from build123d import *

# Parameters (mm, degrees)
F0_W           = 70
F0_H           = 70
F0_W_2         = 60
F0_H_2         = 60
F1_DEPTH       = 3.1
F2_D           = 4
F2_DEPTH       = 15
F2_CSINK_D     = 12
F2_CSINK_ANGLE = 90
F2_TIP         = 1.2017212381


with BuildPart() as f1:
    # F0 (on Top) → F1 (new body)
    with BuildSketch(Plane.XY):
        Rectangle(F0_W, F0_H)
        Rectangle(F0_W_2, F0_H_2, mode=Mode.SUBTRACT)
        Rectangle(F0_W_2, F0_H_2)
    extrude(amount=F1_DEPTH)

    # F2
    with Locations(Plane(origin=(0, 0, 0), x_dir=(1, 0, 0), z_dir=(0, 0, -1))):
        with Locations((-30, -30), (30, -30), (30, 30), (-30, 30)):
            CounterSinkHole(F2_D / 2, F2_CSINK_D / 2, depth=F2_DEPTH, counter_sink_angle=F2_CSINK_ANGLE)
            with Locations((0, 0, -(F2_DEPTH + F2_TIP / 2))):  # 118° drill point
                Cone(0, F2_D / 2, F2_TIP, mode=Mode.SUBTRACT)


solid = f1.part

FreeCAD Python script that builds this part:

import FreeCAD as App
import Part
import Sketcher

V = App.Vector
Q = App.Units.Quantity

doc = App.newDocument("Part")
body = doc.addObject("PartDesign::Body", "Body")

# Sketch on XY plane
sketch1 = body.newObject("Sketcher::SketchObject", "Sketch")
sketch1.AttachmentSupport = (doc.getObject("XY_Plane"), [""])
sketch1.MapMode = "FlatFace"
sketch1.addGeometry([
    Part.LineSegment(V(-35, 35, 0), V(-35, -35, 0)),
    Part.LineSegment(V(-35, -35, 0), V(35, -35, 0)),
    Part.LineSegment(V(35, -35, 0), V(35, 35, 0)),
    Part.LineSegment(V(35, 35, 0), V(-35, 35, 0)),
], False)
sketch1.addConstraint([
    Sketcher.Constraint("Coincident", 0, 2, 1, 1),
    Sketcher.Constraint("Coincident", 1, 2, 2, 1),
    Sketcher.Constraint("Coincident", 2, 2, 3, 1),
    Sketcher.Constraint("Coincident", 3, 2, 0, 1),
    Sketcher.Constraint("Vertical", 0),
    Sketcher.Constraint("Horizontal", 1),
    Sketcher.Constraint("Vertical", 2),
    Sketcher.Constraint("Horizontal", 3),
    Sketcher.Constraint("Symmetric", 0, 2, 2, 2, -1, 1),
    Sketcher.Constraint("Equal", 3, 0),
    Sketcher.Constraint("DistanceX", 1, 1, 1, 2, Q("70 mm")),
])
pad1 = body.newObject("PartDesign::Pad", "Pad")
pad1.Profile = sketch1
pad1.Length = 3.1

# Sketch on XY plane
sketch2 = body.newObject("Sketcher::SketchObject", "Sketch001")
sketch2.AttachmentSupport = (doc.getObject("XY_Plane"), [""])
sketch2.MapMode = "FlatFace"
sketch2.addGeometry([
    Part.Circle(V(-30, 30, 0), V(0, 0, 1), 2),
    Part.Circle(V(30, 30, 0), V(0, 0, 1), 2),
    Part.Circle(V(30, -30, 0), V(0, 0, 1), 2),
    Part.Circle(V(-30, -30, 0), V(0, 0, 1), 2),
], False)
sketch2.addConstraint([
    Sketcher.Constraint("Equal", 0, 1),
    Sketcher.Constraint("Equal", 1, 2),
    Sketcher.Constraint("Equal", 2, 3),
    Sketcher.Constraint("Symmetric", 0, 3, 2, 3, -1, 1),
    Sketcher.Constraint("Symmetric", 1, 3, 3, 3, -1, 1),
    Sketcher.Constraint("Symmetric", 0, 3, 1, 3, -2),
    Sketcher.Constraint("Diameter", 0, Q("4 mm")),
    Sketcher.Constraint("DistanceX", 0, 3, -1, 1, Q("30 mm")),
    Sketcher.Constraint("DistanceY", -1, 1, 0, 3, Q("30 mm")),
])
doc.recompute()
hole = body.newObject("PartDesign::Hole", "Hole")
hole.Profile = sketch2
hole.ThreadType = "None"
hole.Diameter = 4
hole.DepthType = "Dimension"
hole.Depth = 15
hole.DrillPoint = "Angled"
hole.DrillPointAngle = 118
hole.HoleCutType = "Countersink"
hole.HoleCutDiameter = 12
hole.HoleCutCountersinkAngle = 90
hole.Reversed = True

doc.recompute()
